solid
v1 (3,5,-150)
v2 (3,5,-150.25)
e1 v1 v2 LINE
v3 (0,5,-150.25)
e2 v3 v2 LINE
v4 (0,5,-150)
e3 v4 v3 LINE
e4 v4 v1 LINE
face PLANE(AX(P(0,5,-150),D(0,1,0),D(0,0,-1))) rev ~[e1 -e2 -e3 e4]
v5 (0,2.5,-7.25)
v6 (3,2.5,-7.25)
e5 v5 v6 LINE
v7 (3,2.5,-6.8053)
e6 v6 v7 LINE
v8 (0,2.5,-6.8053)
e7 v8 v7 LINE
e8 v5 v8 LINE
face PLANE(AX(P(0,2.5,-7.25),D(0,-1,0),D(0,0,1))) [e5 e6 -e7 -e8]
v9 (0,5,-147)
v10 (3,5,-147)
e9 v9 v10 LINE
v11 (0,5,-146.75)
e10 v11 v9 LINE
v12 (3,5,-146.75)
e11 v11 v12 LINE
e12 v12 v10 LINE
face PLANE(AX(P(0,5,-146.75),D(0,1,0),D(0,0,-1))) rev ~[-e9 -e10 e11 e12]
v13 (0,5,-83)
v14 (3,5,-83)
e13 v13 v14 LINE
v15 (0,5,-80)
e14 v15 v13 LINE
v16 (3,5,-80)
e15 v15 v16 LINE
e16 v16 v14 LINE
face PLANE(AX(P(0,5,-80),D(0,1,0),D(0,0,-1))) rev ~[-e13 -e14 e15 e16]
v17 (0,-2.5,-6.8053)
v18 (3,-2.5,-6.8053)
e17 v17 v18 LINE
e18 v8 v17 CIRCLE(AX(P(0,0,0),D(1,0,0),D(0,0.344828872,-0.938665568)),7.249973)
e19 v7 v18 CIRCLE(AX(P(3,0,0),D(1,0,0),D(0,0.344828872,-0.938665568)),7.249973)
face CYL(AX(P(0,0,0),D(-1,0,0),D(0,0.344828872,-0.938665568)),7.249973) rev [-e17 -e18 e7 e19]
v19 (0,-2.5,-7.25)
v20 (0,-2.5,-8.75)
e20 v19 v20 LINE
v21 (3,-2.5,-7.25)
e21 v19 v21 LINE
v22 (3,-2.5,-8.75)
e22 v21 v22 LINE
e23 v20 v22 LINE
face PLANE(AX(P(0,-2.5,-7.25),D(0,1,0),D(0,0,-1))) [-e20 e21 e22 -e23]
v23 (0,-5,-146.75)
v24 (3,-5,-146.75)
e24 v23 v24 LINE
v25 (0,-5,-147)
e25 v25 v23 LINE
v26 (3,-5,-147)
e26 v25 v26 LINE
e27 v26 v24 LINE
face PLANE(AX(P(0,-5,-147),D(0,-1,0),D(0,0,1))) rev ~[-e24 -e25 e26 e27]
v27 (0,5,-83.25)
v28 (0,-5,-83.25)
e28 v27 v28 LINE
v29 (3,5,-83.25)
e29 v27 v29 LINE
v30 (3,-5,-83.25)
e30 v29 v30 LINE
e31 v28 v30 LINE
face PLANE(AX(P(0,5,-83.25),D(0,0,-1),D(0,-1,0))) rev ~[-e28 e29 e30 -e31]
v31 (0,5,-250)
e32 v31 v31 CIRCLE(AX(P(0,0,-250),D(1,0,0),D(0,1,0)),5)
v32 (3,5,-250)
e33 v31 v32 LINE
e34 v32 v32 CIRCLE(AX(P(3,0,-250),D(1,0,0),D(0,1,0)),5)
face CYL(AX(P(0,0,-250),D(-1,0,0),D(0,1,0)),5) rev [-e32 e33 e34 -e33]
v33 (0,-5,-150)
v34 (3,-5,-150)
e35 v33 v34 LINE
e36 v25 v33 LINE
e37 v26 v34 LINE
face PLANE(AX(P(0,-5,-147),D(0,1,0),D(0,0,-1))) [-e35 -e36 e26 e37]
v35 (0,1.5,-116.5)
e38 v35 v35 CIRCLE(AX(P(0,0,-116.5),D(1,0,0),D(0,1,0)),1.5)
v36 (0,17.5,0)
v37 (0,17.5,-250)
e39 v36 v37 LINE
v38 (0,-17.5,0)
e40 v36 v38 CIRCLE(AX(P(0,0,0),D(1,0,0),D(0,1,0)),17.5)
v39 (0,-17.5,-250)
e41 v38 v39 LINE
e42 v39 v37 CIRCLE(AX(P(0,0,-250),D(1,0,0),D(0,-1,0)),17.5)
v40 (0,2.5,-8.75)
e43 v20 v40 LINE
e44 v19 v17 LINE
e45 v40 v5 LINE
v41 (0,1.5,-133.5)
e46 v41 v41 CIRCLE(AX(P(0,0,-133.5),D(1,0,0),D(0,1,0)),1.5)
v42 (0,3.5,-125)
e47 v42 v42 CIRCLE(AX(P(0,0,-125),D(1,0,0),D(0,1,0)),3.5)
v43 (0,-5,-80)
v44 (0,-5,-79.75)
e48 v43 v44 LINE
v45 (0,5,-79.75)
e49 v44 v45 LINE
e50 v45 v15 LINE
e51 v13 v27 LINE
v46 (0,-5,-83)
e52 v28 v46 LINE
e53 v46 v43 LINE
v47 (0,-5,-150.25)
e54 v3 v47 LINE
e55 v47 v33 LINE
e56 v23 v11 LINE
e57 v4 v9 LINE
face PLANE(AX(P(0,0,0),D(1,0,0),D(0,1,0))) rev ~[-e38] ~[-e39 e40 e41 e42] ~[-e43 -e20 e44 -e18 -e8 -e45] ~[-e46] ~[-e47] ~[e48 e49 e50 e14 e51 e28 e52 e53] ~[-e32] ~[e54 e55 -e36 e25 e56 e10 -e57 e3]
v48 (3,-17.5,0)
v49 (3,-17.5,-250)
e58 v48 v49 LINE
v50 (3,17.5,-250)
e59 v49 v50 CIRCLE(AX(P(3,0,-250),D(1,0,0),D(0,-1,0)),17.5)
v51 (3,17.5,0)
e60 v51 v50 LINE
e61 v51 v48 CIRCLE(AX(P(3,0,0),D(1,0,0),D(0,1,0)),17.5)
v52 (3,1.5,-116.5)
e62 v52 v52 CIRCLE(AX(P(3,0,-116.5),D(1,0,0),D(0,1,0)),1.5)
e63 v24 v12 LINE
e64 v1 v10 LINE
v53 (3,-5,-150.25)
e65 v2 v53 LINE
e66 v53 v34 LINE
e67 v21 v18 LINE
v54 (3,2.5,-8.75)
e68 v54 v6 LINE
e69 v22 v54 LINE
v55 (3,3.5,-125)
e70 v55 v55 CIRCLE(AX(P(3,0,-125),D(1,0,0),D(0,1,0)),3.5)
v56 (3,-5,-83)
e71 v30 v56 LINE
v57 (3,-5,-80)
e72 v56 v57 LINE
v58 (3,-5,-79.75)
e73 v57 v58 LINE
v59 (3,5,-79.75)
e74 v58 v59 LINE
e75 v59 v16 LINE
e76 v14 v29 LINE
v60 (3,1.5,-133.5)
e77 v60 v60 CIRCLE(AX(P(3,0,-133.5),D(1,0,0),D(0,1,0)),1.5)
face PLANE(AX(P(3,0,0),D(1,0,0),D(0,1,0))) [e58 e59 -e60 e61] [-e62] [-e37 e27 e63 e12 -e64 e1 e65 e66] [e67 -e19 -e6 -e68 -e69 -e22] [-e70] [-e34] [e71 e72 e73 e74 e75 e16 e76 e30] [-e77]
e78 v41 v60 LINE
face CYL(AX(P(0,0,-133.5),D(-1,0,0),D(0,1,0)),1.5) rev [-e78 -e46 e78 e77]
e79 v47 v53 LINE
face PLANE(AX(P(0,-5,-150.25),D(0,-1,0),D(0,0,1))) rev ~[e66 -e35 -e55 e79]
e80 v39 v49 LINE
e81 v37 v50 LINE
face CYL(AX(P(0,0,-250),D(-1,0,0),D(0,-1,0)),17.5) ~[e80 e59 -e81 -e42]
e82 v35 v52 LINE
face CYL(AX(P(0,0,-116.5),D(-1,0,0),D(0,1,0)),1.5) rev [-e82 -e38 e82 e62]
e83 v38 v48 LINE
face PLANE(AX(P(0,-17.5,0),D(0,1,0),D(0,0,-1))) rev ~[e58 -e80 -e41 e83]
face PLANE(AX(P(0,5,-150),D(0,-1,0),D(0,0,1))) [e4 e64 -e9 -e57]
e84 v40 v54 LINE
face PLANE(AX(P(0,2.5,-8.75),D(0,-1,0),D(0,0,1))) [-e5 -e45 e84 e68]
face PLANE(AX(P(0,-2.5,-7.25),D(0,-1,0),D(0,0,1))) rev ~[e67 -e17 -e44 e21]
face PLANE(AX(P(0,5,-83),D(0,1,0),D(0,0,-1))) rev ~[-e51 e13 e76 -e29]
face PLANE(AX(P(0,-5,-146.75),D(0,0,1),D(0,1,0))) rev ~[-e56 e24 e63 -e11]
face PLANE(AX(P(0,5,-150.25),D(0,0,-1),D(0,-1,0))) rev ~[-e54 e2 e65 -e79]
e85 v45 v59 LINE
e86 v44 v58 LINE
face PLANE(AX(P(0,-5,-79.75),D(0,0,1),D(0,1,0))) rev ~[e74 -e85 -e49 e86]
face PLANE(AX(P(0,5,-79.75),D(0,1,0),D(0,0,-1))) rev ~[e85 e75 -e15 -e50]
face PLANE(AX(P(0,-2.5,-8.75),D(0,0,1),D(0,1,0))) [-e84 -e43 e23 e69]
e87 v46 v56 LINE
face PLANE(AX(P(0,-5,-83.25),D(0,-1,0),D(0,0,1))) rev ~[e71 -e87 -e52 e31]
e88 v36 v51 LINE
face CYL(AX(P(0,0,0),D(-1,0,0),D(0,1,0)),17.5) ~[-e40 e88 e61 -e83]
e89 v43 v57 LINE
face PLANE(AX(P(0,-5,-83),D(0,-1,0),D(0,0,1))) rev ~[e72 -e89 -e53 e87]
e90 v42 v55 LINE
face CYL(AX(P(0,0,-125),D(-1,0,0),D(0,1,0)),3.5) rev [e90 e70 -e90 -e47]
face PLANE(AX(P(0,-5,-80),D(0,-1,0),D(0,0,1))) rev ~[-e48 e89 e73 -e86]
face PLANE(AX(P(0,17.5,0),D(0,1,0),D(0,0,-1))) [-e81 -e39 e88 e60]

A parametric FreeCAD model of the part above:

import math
import FreeCAD as App
import Part
import Sketcher

V = App.Vector

doc = App.newDocument("Part")
body = doc.addObject("PartDesign::Body", "Body")

# Sketch on YZ plane
sketch1 = body.newObject("Sketcher::SketchObject", "Sketch")
sketch1.AttachmentSupport = (doc.getObject("YZ_Plane"), [""])
sketch1.MapMode = "FlatFace"
sketch1.addGeometry([
    Part.LineSegment(V(17.5, -250, 0), V(17.5, 0, 0)),  # 0
    Part.ArcOfCircle(Part.Circle(V(0, 0, 0), V(0, 0, 1), 17.5), math.radians(0), math.radians(180)),  # 1
    Part.LineSegment(V(-17.5, 0, 0), V(-17.5, -250, 0)),  # 2
    Part.ArcOfCircle(Part.Circle(V(0, -250, 0), V(0, 0, 1), 17.5), math.radians(180), math.radians(360)),  # 3
    Part.Circle(V(0, -250, 0), V(0, 0, 1), 5),  # 4
    Part.LineSegment(V(5, -146.8, 0), V(5, -150.2, 0)),  # 5
    Part.LineSegment(V(5, -150.2, 0), V(-5, -150.2, 0)),  # 6
    Part.LineSegment(V(-5, -150.2, 0), V(-5, -146.8, 0)),  # 7
    Part.LineSegment(V(-5, -146.8, 0), V(5, -146.8, 0)),  # 8
    Part.Circle(V(0, -133.5, 0), V(0, 0, 1), 1.5),  # 9
    Part.Circle(V(0, -125, 0), V(0, 0, 1), 3.5),  # 10
    Part.Circle(V(0, -116.5, 0), V(0, 0, 1), 1.5),  # 11
    Part.LineSegment(V(5, -79.8, 0), V(5, -83.2, 0)),  # 12
    Part.LineSegment(V(5, -83.2, 0), V(-5, -83.2, 0)),  # 13
    Part.LineSegment(V(-5, -83.2, 0), V(-5, -79.8, 0)),  # 14
    Part.LineSegment(V(-5, -79.8, 0), V(5, -79.8, 0)),  # 15
    Part.ArcOfCircle(Part.Circle(V(0, 0, 0), V(0, 0, 1), 7.2), math.radians(-70), math.radians(250)),  # 16
    Part.LineSegment(V(2.5, -6.8, 0), V(2.5, -8.8, 0)),  # 17
    Part.LineSegment(V(2.5, -8.8, 0), V(-2.5, -8.8, 0)),  # 18
    Part.LineSegment(V(-2.5, -8.8, 0), V(-2.5, -6.8, 0)),  # 19
], False)
sketch1.addConstraint([
    Sketcher.Constraint("Tangent", 0, 2, 1, 1),
    Sketcher.Constraint("Tangent", 1, 2, 2, 1),
    Sketcher.Constraint("Tangent", 2, 2, 3, 1),
    Sketcher.Constraint("Tangent", 3, 2, 0, 1),
    Sketcher.Constraint("Coincident", 5, 2, 6, 1),
    Sketcher.Constraint("Coincident", 6, 2, 7, 1),
    Sketcher.Constraint("Coincident", 7, 2, 8, 1),
    Sketcher.Constraint("Coincident", 8, 2, 5, 1),
    Sketcher.Constraint("Coincident", 12, 2, 13, 1),
    Sketcher.Constraint("Coincident", 13, 2, 14, 1),
    Sketcher.Constraint("Coincident", 14, 2, 15, 1),
    Sketcher.Constraint("Coincident", 15, 2, 12, 1),
    Sketcher.Constraint("Coincident", 16, 1, 17, 1),
    Sketcher.Constraint("Coincident", 17, 2, 18, 1),
    Sketcher.Constraint("Coincident", 18, 2, 19, 1),
    Sketcher.Constraint("Coincident", 19, 2, 16, 2),
    Sketcher.Constraint("Vertical", 0),
    Sketcher.Constraint("Vertical", 2),
    Sketcher.Constraint("Vertical", 5),
    Sketcher.Constraint("Horizontal", 6),
    Sketcher.Constraint("Vertical", 7),
    Sketcher.Constraint("Horizontal", 8),
    Sketcher.Constraint("Vertical", 12),
    Sketcher.Constraint("Horizontal", 13),
    Sketcher.Constraint("Vertical", 14),
    Sketcher.Constraint("Horizontal", 15),
    Sketcher.Constraint("Vertical", 17),
    Sketcher.Constraint("Horizontal", 18),
    Sketcher.Constraint("Vertical", 19),
    Sketcher.Constraint("Coincident", 1, 3, -1, 1),
    Sketcher.Constraint("Coincident", 16, 3, -1, 1),
    Sketcher.Constraint("Coincident", 4, 3, 3, 3),
    Sketcher.Constraint("Equal", 9, 11),
    Sketcher.Constraint("PointOnObject", 9, 3, -2),
    Sketcher.Constraint("PointOnObject", 10, 3, -2),
    Sketcher.Constraint("PointOnObject", 11, 3, -2),
    Sketcher.Constraint("Horizontal", 16, 1, 19, 2),
    Sketcher.Constraint("Vertical", 8, 2, 12, 2),
    Sketcher.Constraint("Vertical", 7, 2, 13, 2),
    Sketcher.Constraint("Equal", 7, 12),
    Sketcher.Constraint("Diameter", 4, 10.0),
    Sketcher.Constraint("Diameter", 9, 3.0),
    Sketcher.Constraint("Diameter", 10, 7.0),
    Sketcher.Constraint("Radius", 1, 17.5),
    Sketcher.Constraint("DistanceX", 6, 2, 6, 1, 10.0),
    Sketcher.Constraint("DistanceX", 18, 2, 18, 1, 5.0),
    Sketcher.Constraint("DistanceY", 0, 1, 0, 2, 250.0),
    Sketcher.Constraint("Radius", 16, 7.25),
    Sketcher.Constraint("DistanceY", 10, 3, -1, 1, 125.0),
    Sketcher.Constraint("DistanceX", -1, 1, 5, 2, 5.0),
    Sketcher.Constraint("DistanceY", 9, 3, 10, 3, 8.5),
    Sketcher.Constraint("DistanceY", 10, 3, 11, 3, 8.5),
    Sketcher.Constraint("DistanceY", 5, 2, 5, 1, 3.5),
    Sketcher.Constraint("DistanceY", 8, 2, 12, 2, 63.5),
    Sketcher.Constraint("DistanceY", 5, 2, -1, 1, 150.25),
    Sketcher.Constraint("DistanceY", 17, 2, -1, 1, 8.75),
])
pad1 = body.newObject("PartDesign::Pad", "Pad")
pad1.Profile = sketch1
pad1.Length = 3

doc.recompute()
